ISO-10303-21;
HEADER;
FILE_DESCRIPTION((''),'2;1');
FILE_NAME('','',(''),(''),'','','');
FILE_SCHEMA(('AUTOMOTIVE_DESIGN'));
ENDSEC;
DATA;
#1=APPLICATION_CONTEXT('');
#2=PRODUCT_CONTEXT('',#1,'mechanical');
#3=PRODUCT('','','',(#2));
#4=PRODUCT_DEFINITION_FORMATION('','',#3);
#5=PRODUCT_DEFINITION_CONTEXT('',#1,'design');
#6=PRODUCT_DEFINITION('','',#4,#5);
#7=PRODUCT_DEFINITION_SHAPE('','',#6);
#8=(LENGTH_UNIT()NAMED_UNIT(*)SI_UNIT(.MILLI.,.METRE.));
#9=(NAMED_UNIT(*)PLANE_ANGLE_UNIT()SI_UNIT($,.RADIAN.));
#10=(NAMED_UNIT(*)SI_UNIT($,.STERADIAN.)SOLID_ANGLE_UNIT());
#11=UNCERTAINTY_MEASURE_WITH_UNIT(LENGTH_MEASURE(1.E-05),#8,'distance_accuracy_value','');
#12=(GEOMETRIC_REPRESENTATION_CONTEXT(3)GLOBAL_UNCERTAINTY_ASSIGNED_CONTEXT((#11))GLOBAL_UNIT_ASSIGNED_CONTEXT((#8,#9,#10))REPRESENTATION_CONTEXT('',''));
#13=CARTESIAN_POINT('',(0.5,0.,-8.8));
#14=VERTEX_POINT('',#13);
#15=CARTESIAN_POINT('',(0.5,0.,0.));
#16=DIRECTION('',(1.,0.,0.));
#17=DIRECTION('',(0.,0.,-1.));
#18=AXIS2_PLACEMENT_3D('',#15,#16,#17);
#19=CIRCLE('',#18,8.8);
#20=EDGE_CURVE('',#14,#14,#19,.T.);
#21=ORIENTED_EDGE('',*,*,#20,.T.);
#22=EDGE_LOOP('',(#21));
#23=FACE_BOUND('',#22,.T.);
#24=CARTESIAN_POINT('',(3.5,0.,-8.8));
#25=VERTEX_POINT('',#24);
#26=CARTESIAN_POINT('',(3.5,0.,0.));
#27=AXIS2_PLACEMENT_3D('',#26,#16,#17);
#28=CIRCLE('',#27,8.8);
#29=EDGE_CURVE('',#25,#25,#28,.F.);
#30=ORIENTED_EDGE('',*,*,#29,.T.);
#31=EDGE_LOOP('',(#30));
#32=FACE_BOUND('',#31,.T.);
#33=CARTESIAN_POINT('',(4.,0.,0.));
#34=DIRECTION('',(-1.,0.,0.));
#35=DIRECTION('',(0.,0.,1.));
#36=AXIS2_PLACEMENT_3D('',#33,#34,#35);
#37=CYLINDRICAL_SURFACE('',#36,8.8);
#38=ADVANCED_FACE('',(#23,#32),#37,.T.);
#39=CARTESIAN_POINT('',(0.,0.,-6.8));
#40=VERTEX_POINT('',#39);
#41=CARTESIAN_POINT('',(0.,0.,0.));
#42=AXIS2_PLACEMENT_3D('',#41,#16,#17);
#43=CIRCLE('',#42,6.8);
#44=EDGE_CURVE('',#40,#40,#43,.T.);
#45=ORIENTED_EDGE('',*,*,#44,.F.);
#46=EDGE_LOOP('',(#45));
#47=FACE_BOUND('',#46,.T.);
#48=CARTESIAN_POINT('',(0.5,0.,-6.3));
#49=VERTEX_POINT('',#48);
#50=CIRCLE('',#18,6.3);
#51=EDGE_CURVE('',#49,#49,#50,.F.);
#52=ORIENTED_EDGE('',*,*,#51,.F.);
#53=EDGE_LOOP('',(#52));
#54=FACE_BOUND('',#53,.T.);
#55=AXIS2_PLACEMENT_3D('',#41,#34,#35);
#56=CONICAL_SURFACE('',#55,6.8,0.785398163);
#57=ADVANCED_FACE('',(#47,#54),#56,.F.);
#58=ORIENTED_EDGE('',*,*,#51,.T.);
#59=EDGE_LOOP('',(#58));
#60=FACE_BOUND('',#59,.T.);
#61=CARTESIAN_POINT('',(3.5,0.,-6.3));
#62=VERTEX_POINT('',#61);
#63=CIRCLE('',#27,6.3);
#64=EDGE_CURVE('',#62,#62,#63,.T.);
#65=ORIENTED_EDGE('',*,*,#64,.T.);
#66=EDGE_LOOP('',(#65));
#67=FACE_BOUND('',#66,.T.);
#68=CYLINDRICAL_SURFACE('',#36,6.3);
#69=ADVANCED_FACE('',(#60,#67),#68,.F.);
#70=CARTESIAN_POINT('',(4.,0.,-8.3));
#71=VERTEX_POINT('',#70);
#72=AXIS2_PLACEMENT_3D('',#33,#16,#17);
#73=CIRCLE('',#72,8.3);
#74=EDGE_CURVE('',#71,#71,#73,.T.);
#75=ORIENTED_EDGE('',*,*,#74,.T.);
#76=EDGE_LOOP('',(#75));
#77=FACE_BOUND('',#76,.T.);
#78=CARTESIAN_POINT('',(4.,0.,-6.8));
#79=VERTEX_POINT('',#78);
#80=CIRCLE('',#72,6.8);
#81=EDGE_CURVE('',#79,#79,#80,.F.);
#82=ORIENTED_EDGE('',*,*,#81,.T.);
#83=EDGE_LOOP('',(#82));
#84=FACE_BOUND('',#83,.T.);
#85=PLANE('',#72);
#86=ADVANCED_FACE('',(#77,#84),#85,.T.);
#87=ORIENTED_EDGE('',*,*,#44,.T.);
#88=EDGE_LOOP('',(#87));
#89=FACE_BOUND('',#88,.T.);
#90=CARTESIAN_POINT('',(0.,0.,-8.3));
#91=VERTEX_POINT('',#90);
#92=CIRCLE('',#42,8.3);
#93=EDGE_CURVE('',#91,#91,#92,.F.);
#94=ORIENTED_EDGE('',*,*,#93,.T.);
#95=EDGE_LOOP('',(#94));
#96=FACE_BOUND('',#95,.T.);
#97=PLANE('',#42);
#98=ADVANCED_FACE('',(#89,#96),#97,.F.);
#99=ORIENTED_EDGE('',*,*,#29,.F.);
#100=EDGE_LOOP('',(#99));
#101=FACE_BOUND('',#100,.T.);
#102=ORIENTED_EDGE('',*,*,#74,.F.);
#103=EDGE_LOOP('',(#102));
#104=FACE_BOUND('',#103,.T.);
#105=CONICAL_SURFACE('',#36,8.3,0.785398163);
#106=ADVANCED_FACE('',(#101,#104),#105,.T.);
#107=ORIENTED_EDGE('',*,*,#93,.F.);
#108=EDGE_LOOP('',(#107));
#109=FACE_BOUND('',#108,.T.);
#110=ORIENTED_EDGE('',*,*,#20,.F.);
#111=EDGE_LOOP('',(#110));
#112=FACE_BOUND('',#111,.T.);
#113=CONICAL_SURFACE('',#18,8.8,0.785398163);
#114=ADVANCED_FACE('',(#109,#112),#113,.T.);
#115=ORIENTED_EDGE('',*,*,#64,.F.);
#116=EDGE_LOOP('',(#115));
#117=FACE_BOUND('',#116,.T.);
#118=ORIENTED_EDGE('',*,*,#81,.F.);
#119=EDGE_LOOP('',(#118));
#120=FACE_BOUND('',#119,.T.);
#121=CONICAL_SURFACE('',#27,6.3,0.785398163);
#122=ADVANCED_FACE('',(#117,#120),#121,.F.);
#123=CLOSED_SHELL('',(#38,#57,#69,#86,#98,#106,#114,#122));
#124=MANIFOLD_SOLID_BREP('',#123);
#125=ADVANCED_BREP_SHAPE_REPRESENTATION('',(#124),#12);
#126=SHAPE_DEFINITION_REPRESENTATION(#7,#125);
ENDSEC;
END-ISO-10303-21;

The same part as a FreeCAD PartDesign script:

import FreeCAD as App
import Part
import Sketcher

V = App.Vector


def edges_at(feature, points):
    """Names of the edges that pass closest to the given points."""
    edges = feature.Shape.Edges
    near = lambda p: min(range(len(edges)), key=lambda i: edges[i].distToShape(Part.Vertex(*p))[0])
    return sorted({f"Edge{near(p) + 1}" for p in points})

doc = App.newDocument("Part")
body = doc.addObject("PartDesign::Body", "Body")

# Sketch on YZ plane
sketch1 = body.newObject("Sketcher::SketchObject", "Sketch")
sketch1.AttachmentSupport = (doc.getObject("YZ_Plane"), [""])
sketch1.MapMode = "FlatFace"
sketch1.addGeometry(Part.Circle(V(0, 0, 0), V(0, 0, 1), 8.8), False)
sketch1.addGeometry(Part.Circle(V(0, 0, 0), V(0, 0, 1), 6.3), False)
sketch1.addConstraint(Sketcher.Constraint("Coincident", 0, 3, -1, 1))
sketch1.addConstraint(Sketcher.Constraint("Coincident", 1, 3, -1, 1))
sketch1.addConstraint(Sketcher.Constraint("Diameter", 0, 17.6))
sketch1.addConstraint(Sketcher.Constraint("Diameter", 1, 12.6))
pad1 = body.newObject("PartDesign::Pad", "Pad")
pad1.Profile = sketch1
pad1.Length = 4
doc.recompute()

chamfer = body.newObject("PartDesign::Chamfer", "Chamfer")
chamfer.Base = (pad1, edges_at(pad1, [(0, 0, 8.8), (4, 0, 8.8)]))
chamfer.Size = 0.5
doc.recompute()

chamfer2 = body.newObject("PartDesign::Chamfer", "Chamfer001")
chamfer2.Base = (chamfer, edges_at(chamfer, [(0, 0, 6.3), (4, 0, 6.3)]))
chamfer2.Size = 0.5

doc.recompute()
